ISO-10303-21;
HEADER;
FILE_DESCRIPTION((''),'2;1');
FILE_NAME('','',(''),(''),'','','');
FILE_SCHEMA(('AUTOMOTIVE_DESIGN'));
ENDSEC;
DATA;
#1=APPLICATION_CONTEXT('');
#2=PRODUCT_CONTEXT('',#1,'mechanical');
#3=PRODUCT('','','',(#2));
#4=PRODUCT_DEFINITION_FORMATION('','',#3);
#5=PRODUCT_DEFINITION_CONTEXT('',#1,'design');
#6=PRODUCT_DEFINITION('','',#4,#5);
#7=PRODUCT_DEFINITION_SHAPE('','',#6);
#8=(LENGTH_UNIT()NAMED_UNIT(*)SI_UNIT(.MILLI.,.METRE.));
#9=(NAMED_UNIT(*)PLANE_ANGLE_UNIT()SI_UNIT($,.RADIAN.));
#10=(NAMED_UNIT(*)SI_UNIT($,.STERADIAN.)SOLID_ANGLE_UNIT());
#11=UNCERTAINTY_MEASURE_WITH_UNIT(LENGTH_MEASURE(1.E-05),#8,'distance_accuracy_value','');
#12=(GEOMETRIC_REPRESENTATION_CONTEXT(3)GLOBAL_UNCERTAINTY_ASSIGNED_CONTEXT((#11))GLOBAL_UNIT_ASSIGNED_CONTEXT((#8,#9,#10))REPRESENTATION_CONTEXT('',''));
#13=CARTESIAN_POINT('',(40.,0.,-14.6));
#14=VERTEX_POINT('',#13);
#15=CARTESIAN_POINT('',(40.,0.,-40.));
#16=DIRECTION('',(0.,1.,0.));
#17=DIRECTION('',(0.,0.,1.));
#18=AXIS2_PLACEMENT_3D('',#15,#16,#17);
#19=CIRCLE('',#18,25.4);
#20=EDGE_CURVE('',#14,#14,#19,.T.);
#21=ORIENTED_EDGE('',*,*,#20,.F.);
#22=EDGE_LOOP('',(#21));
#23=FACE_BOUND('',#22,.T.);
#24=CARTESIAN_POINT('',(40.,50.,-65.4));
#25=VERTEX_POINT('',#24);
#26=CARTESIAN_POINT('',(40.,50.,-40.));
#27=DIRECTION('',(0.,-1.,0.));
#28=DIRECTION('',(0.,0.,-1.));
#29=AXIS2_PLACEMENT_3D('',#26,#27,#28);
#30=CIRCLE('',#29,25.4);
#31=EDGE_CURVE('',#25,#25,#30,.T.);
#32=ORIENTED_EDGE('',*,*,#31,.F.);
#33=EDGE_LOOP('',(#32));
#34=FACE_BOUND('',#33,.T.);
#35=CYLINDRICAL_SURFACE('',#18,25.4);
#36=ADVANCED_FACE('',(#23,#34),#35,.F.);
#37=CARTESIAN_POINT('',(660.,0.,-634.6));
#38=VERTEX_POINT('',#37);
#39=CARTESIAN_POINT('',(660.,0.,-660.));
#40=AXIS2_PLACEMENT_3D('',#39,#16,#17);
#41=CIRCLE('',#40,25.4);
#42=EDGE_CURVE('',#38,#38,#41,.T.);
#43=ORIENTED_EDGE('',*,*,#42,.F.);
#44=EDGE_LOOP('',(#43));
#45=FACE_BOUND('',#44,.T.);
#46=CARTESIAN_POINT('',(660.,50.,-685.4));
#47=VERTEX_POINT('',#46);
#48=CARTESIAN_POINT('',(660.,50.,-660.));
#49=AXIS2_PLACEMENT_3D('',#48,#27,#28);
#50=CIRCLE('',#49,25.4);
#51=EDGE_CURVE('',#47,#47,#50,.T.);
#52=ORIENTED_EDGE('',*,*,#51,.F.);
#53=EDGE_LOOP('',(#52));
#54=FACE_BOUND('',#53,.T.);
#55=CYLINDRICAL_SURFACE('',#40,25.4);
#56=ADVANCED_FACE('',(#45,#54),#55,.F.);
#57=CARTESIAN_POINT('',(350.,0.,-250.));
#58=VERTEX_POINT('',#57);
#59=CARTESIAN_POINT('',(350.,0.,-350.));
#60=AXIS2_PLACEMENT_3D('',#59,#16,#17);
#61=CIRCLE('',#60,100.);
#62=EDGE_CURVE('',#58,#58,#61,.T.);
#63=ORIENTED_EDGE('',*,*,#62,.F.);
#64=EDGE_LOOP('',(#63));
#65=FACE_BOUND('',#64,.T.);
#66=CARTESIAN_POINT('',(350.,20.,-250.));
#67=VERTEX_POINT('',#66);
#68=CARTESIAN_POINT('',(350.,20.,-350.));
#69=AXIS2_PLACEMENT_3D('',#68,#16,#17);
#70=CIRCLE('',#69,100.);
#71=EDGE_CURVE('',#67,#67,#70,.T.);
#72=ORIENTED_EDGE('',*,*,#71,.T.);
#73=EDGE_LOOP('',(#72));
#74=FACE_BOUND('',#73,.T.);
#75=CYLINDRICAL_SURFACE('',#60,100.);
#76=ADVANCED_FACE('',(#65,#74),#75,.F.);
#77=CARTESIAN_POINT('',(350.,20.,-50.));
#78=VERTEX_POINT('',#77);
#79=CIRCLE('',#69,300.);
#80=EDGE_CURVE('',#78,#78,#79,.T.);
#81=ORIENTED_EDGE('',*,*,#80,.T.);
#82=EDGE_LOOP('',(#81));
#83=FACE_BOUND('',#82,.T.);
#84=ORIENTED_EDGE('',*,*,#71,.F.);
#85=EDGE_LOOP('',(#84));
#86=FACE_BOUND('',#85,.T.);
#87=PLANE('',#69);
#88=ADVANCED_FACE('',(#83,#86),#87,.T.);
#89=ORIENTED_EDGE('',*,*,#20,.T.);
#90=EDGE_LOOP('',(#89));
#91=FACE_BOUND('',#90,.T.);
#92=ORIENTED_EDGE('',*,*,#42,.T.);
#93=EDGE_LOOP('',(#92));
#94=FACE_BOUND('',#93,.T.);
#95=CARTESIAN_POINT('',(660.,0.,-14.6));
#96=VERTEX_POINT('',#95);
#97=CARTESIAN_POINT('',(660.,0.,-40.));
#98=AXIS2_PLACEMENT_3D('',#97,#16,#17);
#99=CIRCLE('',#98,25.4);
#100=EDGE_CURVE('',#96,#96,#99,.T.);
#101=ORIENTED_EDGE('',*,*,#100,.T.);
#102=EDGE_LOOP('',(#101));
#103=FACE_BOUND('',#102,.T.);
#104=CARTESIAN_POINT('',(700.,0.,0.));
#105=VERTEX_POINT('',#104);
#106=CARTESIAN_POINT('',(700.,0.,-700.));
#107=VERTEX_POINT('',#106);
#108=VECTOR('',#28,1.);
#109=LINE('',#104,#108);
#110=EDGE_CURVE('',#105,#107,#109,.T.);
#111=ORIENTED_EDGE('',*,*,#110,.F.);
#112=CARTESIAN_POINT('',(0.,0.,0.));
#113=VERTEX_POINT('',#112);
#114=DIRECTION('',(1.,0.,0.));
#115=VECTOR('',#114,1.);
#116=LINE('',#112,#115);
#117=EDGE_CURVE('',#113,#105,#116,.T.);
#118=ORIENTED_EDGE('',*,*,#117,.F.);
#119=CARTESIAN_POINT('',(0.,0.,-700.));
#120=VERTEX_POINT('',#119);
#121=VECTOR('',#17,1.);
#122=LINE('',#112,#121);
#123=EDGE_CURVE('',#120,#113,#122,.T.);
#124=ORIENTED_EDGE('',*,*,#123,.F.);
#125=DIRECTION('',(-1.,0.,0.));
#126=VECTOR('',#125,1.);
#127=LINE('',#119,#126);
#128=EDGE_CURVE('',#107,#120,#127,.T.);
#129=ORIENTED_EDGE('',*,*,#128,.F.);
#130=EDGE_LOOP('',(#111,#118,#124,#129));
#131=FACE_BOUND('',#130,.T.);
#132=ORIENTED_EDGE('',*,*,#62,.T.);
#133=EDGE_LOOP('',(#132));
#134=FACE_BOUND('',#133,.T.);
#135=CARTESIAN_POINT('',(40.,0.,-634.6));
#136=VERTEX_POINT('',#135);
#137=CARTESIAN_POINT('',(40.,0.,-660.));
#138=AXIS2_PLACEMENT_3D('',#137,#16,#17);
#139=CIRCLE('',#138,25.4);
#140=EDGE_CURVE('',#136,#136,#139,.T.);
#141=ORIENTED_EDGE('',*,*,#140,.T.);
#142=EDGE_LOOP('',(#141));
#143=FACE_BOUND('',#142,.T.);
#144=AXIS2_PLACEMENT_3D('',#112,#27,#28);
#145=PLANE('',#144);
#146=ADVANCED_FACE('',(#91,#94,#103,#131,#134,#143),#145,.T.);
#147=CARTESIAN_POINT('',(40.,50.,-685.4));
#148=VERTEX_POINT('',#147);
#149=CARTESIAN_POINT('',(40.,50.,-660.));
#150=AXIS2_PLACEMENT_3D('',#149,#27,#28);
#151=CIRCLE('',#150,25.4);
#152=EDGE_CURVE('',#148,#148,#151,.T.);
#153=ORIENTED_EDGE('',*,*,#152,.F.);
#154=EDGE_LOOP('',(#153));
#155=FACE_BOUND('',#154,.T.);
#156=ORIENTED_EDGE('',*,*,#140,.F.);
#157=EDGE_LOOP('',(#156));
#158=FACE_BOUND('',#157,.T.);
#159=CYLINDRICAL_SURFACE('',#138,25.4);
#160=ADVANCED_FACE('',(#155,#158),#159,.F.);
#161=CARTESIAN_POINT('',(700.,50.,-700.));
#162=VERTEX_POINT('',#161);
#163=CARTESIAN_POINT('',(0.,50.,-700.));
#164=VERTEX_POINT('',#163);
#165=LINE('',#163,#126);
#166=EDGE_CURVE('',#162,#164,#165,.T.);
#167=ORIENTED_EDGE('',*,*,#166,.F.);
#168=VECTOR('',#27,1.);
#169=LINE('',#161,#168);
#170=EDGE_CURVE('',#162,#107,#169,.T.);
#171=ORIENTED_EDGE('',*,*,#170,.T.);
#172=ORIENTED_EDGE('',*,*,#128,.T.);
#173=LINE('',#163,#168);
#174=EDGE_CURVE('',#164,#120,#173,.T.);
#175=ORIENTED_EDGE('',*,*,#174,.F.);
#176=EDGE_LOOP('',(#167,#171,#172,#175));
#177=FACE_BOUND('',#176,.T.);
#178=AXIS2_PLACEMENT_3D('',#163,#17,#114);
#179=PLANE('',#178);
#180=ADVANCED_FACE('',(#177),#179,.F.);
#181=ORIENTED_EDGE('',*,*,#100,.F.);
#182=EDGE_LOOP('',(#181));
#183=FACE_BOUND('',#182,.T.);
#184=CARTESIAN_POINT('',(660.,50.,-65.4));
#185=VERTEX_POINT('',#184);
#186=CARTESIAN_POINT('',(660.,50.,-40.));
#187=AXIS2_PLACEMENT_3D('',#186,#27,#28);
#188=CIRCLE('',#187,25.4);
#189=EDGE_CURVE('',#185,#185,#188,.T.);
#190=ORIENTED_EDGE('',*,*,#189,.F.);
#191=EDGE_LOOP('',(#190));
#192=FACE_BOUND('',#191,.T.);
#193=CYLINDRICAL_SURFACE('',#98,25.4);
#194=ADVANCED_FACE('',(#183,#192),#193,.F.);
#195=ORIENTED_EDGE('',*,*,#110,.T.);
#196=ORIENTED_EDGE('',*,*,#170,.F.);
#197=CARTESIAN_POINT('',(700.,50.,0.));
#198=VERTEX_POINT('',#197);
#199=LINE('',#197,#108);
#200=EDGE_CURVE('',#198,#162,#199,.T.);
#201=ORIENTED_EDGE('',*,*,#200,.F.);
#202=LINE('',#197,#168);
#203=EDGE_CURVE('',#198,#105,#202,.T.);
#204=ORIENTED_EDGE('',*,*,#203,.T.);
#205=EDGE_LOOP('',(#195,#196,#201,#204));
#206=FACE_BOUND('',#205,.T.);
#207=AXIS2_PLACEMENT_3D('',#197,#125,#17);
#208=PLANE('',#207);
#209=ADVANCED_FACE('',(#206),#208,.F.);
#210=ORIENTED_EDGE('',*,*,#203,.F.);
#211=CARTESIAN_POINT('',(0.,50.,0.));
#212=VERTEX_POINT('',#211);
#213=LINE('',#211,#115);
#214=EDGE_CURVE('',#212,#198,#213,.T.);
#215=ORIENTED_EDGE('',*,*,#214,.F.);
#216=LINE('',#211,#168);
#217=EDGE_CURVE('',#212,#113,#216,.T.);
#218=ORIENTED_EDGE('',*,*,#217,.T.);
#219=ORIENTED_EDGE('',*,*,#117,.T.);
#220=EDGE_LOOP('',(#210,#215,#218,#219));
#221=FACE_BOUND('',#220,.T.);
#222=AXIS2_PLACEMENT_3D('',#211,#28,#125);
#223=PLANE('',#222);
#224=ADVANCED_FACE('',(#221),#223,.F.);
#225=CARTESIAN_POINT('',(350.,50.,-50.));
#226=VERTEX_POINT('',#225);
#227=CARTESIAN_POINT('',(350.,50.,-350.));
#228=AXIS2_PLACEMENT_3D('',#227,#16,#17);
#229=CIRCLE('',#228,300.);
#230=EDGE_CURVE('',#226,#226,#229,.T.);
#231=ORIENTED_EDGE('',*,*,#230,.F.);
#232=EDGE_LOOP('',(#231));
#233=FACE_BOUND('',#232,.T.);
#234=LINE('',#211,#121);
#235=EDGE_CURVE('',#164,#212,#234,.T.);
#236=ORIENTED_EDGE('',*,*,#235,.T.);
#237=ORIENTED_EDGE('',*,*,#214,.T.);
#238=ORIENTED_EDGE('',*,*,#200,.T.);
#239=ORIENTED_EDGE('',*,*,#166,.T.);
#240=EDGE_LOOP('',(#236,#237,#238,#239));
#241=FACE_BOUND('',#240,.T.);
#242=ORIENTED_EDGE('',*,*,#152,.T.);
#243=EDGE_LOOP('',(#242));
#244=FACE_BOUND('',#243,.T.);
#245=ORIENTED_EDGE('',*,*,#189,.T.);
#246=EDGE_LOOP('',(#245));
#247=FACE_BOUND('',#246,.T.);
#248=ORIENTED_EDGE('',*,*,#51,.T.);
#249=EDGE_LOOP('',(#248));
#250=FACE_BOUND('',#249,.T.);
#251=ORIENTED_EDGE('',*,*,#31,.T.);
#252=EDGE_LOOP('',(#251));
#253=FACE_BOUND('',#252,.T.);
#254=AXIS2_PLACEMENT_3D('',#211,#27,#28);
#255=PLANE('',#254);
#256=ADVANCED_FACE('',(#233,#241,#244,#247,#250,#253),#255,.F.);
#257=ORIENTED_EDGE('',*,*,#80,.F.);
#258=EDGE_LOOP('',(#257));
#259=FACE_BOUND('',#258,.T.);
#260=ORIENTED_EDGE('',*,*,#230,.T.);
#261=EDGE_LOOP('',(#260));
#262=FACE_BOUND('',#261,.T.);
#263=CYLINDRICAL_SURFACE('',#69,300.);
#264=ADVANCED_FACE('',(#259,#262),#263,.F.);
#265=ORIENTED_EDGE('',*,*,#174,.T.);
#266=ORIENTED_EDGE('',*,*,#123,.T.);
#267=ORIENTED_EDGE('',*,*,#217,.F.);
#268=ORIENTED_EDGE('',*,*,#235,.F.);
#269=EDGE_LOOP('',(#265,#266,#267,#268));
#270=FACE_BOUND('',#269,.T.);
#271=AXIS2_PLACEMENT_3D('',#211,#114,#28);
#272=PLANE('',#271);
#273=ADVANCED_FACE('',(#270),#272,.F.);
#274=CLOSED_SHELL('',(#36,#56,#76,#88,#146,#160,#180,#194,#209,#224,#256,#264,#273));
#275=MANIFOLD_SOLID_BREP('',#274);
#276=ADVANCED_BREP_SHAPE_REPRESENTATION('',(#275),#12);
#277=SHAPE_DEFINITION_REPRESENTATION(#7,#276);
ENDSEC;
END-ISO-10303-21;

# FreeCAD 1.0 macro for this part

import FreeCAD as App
import Part
import Sketcher
from FreeCAD import Vector

doc = App.newDocument("Part")
params = doc.addObject("Spreadsheet::Sheet", "Params")
for row, (alias, value) in enumerate([
    ("sketch1_width", "700 mm"),
    ("pad1_length", "50 mm"),
    ("sketch2_diameter", "50.8 mm"),
    ("sketch3_diameter", "600 mm"),
    ("pocket2_length", "30 mm"),
    ("sketch4_diameter", "200 mm"),
    ("pocket3_length", "20 mm"),
], start=1):
    params.set(f"A{row}", alias)
    params.set(f"B{row}", "=" + value)
    params.setAlias(f"B{row}", alias)

body = doc.addObject("PartDesign::Body", "Body")

sketch1 = doc.addObject("Sketcher::SketchObject", "Sketch")
body.addObject(sketch1)
sketch1.AttachmentSupport = (doc.XZ_Plane, [""])
sketch1.MapMode = "FlatFace"
sketch1.addGeometry([
    Part.LineSegment(Vector(0, -700, 0), Vector(0, 0, 0)),
    Part.LineSegment(Vector(0, 0, 0), Vector(700, 0, 0)),
    Part.LineSegment(Vector(700, 0, 0), Vector(700, -700, 0)),
    Part.LineSegment(Vector(700, -700, 0), Vector(0, -700, 0)),
], False)
sketch1.addConstraint([
    Sketcher.Constraint("Coincident", 0, 2, 1, 1),
    Sketcher.Constraint("Coincident", 1, 2, 2, 1),
    Sketcher.Constraint("Coincident", 2, 2, 3, 1),
    Sketcher.Constraint("Coincident", 3, 2, 0, 1),
    Sketcher.Constraint("Vertical", 0),
    Sketcher.Constraint("Horizontal", 1),
    Sketcher.Constraint("Vertical", 2),
    Sketcher.Constraint("Horizontal", 3),
    Sketcher.Constraint("Coincident", 0, 2, -1, 1),
    Sketcher.Constraint("Equal", 3, 0),
    Sketcher.Constraint("DistanceX", 1, 1, 1, 2, 700.0),
])
sketch1.setExpression("Constraints[10]", "Params.sketch1_width")
pad1 = doc.addObject("PartDesign::Pad", "Pad")
body.addObject(pad1)
pad1.Profile = sketch1
pad1.setExpression("Length", "Params.pad1_length")
pad1.Reversed = True

sketch2 = doc.addObject("Sketcher::SketchObject", "Sketch001")
body.addObject(sketch2)
sketch2.AttachmentSupport = (doc.XZ_Plane, [""])
sketch2.MapMode = "FlatFace"
sketch2.AttachmentOffset = App.Placement(Vector(0, 0, -50), App.Rotation())
sketch2.addGeometry([
    Part.Circle(Vector(40, -40, 0), Vector(0, 0, 1), 25.4),
    Part.Circle(Vector(660, -40, 0), Vector(0, 0, 1), 25.4),
    Part.Circle(Vector(660, -660, 0), Vector(0, 0, 1), 25.4),
    Part.Circle(Vector(40, -660, 0), Vector(0, 0, 1), 25.4),
], False)
sketch2.addConstraint([
    Sketcher.Constraint("Equal", 0, 1),
    Sketcher.Constraint("Equal", 1, 2),
    Sketcher.Constraint("Equal", 2, 3),
    Sketcher.Constraint("Horizontal", 0, 3, 1, 3),
    Sketcher.Constraint("Horizontal", 2, 3, 3, 3),
    Sketcher.Constraint("Vertical", 1, 3, 2, 3),
    Sketcher.Constraint("Vertical", 0, 3, 3, 3),
    Sketcher.Constraint("Diameter", 0, 50.8),
    Sketcher.Constraint("DistanceX", -1, 1, 0, 3, 40.0),
    Sketcher.Constraint("DistanceY", 0, 3, -1, 1, 40.0),
    Sketcher.Constraint("DistanceX", -1, 1, 1, 3, 660.0),
    Sketcher.Constraint("DistanceY", 2, 3, -1, 1, 660.0),
])
sketch2.setExpression("Constraints[7]", "Params.sketch2_diameter")
pocket1 = doc.addObject("PartDesign::Pocket", "Pocket")
body.addObject(pocket1)
pocket1.Profile = sketch2
pocket1.Type = "ThroughAll"
pocket1.Midplane = True

sketch3 = doc.addObject("Sketcher::SketchObject", "Sketch002")
body.addObject(sketch3)
sketch3.AttachmentSupport = (doc.XZ_Plane, [""])
sketch3.MapMode = "FlatFace"
sketch3.AttachmentOffset = App.Placement(Vector(0, 0, -50), App.Rotation())
sketch3.addGeometry(Part.Circle(Vector(350, -350, 0), Vector(0, 0, 1), 300), False)
sketch3.addConstraint([
    Sketcher.Constraint("Diameter", 0, 600.0),
    Sketcher.Constraint("DistanceX", -1, 1, 0, 3, 350.0),
    Sketcher.Constraint("DistanceY", 0, 3, -1, 1, 350.0),
])
sketch3.setExpression("Constraints[0]", "Params.sketch3_diameter")
pocket2 = doc.addObject("PartDesign::Pocket", "Pocket001")
body.addObject(pocket2)
pocket2.Profile = sketch3
pocket2.setExpression("Length", "Params.pocket2_length")
pocket2.Reversed = True

sketch4 = doc.addObject("Sketcher::SketchObject", "Sketch003")
body.addObject(sketch4)
sketch4.AttachmentSupport = (doc.XZ_Plane, [""])
sketch4.MapMode = "FlatFace"
sketch4.AttachmentOffset = App.Placement(Vector(0, 0, -20), App.Rotation())
sketch4.addGeometry(Part.Circle(Vector(350, -350, 0), Vector(0, 0, 1), 100), False)
sketch4.addConstraint([
    Sketcher.Constraint("Diameter", 0, 200.0),
    Sketcher.Constraint("DistanceX", -1, 1, 0, 3, 350.0),
    Sketcher.Constraint("DistanceY", 0, 3, -1, 1, 350.0),
])
sketch4.setExpression("Constraints[0]", "Params.sketch4_diameter")
pocket3 = doc.addObject("PartDesign::Pocket", "Pocket002")
body.addObject(pocket3)
pocket3.Profile = sketch4
pocket3.setExpression("Length", "Params.pocket3_length")
pocket3.Reversed = True

doc.recompute()
